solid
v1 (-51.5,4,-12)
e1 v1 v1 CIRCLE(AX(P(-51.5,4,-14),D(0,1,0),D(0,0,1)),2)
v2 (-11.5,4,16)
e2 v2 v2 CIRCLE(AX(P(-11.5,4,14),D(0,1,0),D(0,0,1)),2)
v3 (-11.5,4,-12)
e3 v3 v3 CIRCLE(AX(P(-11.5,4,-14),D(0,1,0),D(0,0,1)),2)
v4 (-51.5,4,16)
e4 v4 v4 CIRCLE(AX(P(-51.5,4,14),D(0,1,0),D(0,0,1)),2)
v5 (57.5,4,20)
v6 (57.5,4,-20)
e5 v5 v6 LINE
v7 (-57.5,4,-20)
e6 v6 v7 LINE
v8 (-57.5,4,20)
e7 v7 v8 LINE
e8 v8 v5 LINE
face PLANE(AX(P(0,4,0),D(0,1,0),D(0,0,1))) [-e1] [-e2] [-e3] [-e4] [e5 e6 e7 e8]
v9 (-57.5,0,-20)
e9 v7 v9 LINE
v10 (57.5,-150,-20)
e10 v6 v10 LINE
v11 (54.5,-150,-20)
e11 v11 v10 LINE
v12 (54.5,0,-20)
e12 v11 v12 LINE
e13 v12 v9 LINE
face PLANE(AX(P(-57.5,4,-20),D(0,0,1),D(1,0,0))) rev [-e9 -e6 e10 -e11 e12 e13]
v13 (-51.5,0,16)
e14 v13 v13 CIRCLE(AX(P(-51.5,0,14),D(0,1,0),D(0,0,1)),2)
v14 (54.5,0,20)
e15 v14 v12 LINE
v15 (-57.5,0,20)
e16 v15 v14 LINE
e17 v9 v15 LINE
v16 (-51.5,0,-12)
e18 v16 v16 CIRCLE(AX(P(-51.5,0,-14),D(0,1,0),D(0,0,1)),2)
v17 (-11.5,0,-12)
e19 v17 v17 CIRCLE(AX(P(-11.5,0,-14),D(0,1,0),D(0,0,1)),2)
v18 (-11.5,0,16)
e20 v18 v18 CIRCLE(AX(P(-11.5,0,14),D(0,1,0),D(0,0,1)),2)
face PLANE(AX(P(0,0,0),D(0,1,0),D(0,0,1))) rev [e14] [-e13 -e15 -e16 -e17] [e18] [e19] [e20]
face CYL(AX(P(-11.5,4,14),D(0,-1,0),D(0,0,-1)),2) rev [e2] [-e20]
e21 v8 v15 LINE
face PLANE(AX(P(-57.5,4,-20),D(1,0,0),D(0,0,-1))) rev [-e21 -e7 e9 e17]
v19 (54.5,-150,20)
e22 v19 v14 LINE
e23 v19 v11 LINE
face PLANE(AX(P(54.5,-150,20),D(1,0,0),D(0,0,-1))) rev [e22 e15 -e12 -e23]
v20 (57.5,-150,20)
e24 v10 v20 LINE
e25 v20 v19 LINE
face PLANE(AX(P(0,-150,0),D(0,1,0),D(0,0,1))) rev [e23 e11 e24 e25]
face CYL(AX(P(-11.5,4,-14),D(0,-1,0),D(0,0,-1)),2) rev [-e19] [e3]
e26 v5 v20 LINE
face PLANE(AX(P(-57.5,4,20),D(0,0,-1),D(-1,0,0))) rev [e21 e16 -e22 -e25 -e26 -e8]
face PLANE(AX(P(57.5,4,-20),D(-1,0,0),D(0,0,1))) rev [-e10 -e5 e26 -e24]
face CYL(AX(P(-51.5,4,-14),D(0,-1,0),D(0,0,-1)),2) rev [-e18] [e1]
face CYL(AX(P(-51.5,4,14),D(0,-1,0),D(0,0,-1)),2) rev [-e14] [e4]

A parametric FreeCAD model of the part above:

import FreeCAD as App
import Part
import Sketcher

V = App.Vector

doc = App.newDocument("Part")
params = doc.addObject("Spreadsheet::Sheet", "Params")
for row, (alias, value) in enumerate([
    ("sketch1_diameter", "4 mm"),
    ("sketch1_width", "115 mm"),
    ("sketch1_height", "40 mm"),
    ("pad1_length", "4 mm"),
    ("sketch2_width", "3 mm"),
    ("sketch2_height", "40 mm"),
    ("pad2_length", "150 mm"),
], start=1):
    params.set(f"A{row}", alias)
    params.set(f"B{row}", "=" + value)
    params.setAlias(f"B{row}", alias)

body = doc.addObject("PartDesign::Body", "Body")

sketch1 = doc.addObject("Sketcher::SketchObject", "Sketch")
body.addObject(sketch1)
sketch1.AttachmentSupport = (doc.XZ_Plane, [""])
sketch1.MapMode = "FlatFace"
sketch1.addGeometry([
    Part.LineSegment(V(-57.5, -20, 0), V(-57.5, 20, 0)),
    Part.LineSegment(V(-57.5, 20, 0), V(57.5, 20, 0)),
    Part.LineSegment(V(57.5, 20, 0), V(57.5, -20, 0)),
    Part.LineSegment(V(57.5, -20, 0), V(-57.5, -20, 0)),
    Part.Circle(V(-51.5, 14, 0), V(0, 0, 1), 2),
    Part.Circle(V(-11.5, 14, 0), V(0, 0, 1), 2),
    Part.Circle(V(-51.5, -14, 0), V(0, 0, 1), 2),
    Part.Circle(V(-11.5, -14, 0), V(0, 0, 1), 2),
], False)
sketch1.addConstraint([
    Sketcher.Constraint("Coincident", 0, 2, 1, 1),
    Sketcher.Constraint("Coincident", 1, 2, 2, 1),
    Sketcher.Constraint("Coincident", 2, 2, 3, 1),
    Sketcher.Constraint("Coincident", 3, 2, 0, 1),
    Sketcher.Constraint("Vertical", 0),
    Sketcher.Constraint("Horizontal", 1),
    Sketcher.Constraint("Vertical", 2),
    Sketcher.Constraint("Horizontal", 3),
    Sketcher.Constraint("Equal", 4, 5),
    Sketcher.Constraint("Equal", 5, 6),
    Sketcher.Constraint("Equal", 6, 7),
    Sketcher.Constraint("Symmetric", 0, 2, 2, 2, -1, 1),
    Sketcher.Constraint("Symmetric", 4, 3, 6, 3, -1),
    Sketcher.Constraint("Symmetric", 5, 3, 7, 3, -1),
    Sketcher.Constraint("Horizontal", 4, 3, 5, 3),
    Sketcher.Constraint("Diameter", 4, 4.0),
    Sketcher.Constraint("DistanceX", 1, 1, 1, 2, 115.0),
    Sketcher.Constraint("DistanceY", 0, 1, 0, 2, 40.0),
    Sketcher.Constraint("DistanceY", -1, 1, 4, 3, 14.0),
    Sketcher.Constraint("DistanceX", 4, 3, 5, 3, 40.0),
    Sketcher.Constraint("DistanceX", 0, 2, 4, 3, 6.0),
])
sketch1.setExpression("Constraints[15]", "Params.sketch1_diameter")
sketch1.setExpression("Constraints[16]", "Params.sketch1_width")
sketch1.setExpression("Constraints[17]", "Params.sketch1_height")
pad1 = doc.addObject("PartDesign::Pad", "Pad")
body.addObject(pad1)
pad1.Profile = sketch1
pad1.setExpression("Length", "Params.pad1_length")
pad1.Reversed = True

sketch2 = doc.addObject("Sketcher::SketchObject", "Sketch001")
body.addObject(sketch2)
sketch2.AttachmentSupport = (doc.XZ_Plane, [""])
sketch2.MapMode = "FlatFace"
sketch2.addGeometry([
    Part.LineSegment(V(54.5, 20, 0), V(54.5, -20, 0)),
    Part.LineSegment(V(54.5, -20, 0), V(57.5, -20, 0)),
    Part.LineSegment(V(57.5, -20, 0), V(57.5, 20, 0)),
    Part.LineSegment(V(57.5, 20, 0), V(54.5, 20, 0)),
], False)
sketch2.addConstraint([
    Sketcher.Constraint("Coincident", 0, 2, 1, 1),
    Sketcher.Constraint("Coincident", 1, 2, 2, 1),
    Sketcher.Constraint("Coincident", 2, 2, 3, 1),
    Sketcher.Constraint("Coincident", 3, 2, 0, 1),
    Sketcher.Constraint("Vertical", 0),
    Sketcher.Constraint("Horizontal", 1),
    Sketcher.Constraint("Vertical", 2),
    Sketcher.Constraint("Horizontal", 3),
    Sketcher.Constraint("DistanceX", 1, 1, 1, 2, 3.0),
    Sketcher.Constraint("DistanceY", 0, 2, 0, 1, 40.0),
    Sketcher.Constraint("DistanceY", 0, 2, -1, 1, 20.0),
    Sketcher.Constraint("DistanceX", -1, 1, 0, 2, 54.5),
])
sketch2.setExpression("Constraints[8]", "Params.sketch2_width")
sketch2.setExpression("Constraints[9]", "Params.sketch2_height")
pad2 = doc.addObject("PartDesign::Pad", "Pad001")
body.addObject(pad2)
pad2.Profile = sketch2
pad2.setExpression("Length", "Params.pad2_length")

doc.recompute()
